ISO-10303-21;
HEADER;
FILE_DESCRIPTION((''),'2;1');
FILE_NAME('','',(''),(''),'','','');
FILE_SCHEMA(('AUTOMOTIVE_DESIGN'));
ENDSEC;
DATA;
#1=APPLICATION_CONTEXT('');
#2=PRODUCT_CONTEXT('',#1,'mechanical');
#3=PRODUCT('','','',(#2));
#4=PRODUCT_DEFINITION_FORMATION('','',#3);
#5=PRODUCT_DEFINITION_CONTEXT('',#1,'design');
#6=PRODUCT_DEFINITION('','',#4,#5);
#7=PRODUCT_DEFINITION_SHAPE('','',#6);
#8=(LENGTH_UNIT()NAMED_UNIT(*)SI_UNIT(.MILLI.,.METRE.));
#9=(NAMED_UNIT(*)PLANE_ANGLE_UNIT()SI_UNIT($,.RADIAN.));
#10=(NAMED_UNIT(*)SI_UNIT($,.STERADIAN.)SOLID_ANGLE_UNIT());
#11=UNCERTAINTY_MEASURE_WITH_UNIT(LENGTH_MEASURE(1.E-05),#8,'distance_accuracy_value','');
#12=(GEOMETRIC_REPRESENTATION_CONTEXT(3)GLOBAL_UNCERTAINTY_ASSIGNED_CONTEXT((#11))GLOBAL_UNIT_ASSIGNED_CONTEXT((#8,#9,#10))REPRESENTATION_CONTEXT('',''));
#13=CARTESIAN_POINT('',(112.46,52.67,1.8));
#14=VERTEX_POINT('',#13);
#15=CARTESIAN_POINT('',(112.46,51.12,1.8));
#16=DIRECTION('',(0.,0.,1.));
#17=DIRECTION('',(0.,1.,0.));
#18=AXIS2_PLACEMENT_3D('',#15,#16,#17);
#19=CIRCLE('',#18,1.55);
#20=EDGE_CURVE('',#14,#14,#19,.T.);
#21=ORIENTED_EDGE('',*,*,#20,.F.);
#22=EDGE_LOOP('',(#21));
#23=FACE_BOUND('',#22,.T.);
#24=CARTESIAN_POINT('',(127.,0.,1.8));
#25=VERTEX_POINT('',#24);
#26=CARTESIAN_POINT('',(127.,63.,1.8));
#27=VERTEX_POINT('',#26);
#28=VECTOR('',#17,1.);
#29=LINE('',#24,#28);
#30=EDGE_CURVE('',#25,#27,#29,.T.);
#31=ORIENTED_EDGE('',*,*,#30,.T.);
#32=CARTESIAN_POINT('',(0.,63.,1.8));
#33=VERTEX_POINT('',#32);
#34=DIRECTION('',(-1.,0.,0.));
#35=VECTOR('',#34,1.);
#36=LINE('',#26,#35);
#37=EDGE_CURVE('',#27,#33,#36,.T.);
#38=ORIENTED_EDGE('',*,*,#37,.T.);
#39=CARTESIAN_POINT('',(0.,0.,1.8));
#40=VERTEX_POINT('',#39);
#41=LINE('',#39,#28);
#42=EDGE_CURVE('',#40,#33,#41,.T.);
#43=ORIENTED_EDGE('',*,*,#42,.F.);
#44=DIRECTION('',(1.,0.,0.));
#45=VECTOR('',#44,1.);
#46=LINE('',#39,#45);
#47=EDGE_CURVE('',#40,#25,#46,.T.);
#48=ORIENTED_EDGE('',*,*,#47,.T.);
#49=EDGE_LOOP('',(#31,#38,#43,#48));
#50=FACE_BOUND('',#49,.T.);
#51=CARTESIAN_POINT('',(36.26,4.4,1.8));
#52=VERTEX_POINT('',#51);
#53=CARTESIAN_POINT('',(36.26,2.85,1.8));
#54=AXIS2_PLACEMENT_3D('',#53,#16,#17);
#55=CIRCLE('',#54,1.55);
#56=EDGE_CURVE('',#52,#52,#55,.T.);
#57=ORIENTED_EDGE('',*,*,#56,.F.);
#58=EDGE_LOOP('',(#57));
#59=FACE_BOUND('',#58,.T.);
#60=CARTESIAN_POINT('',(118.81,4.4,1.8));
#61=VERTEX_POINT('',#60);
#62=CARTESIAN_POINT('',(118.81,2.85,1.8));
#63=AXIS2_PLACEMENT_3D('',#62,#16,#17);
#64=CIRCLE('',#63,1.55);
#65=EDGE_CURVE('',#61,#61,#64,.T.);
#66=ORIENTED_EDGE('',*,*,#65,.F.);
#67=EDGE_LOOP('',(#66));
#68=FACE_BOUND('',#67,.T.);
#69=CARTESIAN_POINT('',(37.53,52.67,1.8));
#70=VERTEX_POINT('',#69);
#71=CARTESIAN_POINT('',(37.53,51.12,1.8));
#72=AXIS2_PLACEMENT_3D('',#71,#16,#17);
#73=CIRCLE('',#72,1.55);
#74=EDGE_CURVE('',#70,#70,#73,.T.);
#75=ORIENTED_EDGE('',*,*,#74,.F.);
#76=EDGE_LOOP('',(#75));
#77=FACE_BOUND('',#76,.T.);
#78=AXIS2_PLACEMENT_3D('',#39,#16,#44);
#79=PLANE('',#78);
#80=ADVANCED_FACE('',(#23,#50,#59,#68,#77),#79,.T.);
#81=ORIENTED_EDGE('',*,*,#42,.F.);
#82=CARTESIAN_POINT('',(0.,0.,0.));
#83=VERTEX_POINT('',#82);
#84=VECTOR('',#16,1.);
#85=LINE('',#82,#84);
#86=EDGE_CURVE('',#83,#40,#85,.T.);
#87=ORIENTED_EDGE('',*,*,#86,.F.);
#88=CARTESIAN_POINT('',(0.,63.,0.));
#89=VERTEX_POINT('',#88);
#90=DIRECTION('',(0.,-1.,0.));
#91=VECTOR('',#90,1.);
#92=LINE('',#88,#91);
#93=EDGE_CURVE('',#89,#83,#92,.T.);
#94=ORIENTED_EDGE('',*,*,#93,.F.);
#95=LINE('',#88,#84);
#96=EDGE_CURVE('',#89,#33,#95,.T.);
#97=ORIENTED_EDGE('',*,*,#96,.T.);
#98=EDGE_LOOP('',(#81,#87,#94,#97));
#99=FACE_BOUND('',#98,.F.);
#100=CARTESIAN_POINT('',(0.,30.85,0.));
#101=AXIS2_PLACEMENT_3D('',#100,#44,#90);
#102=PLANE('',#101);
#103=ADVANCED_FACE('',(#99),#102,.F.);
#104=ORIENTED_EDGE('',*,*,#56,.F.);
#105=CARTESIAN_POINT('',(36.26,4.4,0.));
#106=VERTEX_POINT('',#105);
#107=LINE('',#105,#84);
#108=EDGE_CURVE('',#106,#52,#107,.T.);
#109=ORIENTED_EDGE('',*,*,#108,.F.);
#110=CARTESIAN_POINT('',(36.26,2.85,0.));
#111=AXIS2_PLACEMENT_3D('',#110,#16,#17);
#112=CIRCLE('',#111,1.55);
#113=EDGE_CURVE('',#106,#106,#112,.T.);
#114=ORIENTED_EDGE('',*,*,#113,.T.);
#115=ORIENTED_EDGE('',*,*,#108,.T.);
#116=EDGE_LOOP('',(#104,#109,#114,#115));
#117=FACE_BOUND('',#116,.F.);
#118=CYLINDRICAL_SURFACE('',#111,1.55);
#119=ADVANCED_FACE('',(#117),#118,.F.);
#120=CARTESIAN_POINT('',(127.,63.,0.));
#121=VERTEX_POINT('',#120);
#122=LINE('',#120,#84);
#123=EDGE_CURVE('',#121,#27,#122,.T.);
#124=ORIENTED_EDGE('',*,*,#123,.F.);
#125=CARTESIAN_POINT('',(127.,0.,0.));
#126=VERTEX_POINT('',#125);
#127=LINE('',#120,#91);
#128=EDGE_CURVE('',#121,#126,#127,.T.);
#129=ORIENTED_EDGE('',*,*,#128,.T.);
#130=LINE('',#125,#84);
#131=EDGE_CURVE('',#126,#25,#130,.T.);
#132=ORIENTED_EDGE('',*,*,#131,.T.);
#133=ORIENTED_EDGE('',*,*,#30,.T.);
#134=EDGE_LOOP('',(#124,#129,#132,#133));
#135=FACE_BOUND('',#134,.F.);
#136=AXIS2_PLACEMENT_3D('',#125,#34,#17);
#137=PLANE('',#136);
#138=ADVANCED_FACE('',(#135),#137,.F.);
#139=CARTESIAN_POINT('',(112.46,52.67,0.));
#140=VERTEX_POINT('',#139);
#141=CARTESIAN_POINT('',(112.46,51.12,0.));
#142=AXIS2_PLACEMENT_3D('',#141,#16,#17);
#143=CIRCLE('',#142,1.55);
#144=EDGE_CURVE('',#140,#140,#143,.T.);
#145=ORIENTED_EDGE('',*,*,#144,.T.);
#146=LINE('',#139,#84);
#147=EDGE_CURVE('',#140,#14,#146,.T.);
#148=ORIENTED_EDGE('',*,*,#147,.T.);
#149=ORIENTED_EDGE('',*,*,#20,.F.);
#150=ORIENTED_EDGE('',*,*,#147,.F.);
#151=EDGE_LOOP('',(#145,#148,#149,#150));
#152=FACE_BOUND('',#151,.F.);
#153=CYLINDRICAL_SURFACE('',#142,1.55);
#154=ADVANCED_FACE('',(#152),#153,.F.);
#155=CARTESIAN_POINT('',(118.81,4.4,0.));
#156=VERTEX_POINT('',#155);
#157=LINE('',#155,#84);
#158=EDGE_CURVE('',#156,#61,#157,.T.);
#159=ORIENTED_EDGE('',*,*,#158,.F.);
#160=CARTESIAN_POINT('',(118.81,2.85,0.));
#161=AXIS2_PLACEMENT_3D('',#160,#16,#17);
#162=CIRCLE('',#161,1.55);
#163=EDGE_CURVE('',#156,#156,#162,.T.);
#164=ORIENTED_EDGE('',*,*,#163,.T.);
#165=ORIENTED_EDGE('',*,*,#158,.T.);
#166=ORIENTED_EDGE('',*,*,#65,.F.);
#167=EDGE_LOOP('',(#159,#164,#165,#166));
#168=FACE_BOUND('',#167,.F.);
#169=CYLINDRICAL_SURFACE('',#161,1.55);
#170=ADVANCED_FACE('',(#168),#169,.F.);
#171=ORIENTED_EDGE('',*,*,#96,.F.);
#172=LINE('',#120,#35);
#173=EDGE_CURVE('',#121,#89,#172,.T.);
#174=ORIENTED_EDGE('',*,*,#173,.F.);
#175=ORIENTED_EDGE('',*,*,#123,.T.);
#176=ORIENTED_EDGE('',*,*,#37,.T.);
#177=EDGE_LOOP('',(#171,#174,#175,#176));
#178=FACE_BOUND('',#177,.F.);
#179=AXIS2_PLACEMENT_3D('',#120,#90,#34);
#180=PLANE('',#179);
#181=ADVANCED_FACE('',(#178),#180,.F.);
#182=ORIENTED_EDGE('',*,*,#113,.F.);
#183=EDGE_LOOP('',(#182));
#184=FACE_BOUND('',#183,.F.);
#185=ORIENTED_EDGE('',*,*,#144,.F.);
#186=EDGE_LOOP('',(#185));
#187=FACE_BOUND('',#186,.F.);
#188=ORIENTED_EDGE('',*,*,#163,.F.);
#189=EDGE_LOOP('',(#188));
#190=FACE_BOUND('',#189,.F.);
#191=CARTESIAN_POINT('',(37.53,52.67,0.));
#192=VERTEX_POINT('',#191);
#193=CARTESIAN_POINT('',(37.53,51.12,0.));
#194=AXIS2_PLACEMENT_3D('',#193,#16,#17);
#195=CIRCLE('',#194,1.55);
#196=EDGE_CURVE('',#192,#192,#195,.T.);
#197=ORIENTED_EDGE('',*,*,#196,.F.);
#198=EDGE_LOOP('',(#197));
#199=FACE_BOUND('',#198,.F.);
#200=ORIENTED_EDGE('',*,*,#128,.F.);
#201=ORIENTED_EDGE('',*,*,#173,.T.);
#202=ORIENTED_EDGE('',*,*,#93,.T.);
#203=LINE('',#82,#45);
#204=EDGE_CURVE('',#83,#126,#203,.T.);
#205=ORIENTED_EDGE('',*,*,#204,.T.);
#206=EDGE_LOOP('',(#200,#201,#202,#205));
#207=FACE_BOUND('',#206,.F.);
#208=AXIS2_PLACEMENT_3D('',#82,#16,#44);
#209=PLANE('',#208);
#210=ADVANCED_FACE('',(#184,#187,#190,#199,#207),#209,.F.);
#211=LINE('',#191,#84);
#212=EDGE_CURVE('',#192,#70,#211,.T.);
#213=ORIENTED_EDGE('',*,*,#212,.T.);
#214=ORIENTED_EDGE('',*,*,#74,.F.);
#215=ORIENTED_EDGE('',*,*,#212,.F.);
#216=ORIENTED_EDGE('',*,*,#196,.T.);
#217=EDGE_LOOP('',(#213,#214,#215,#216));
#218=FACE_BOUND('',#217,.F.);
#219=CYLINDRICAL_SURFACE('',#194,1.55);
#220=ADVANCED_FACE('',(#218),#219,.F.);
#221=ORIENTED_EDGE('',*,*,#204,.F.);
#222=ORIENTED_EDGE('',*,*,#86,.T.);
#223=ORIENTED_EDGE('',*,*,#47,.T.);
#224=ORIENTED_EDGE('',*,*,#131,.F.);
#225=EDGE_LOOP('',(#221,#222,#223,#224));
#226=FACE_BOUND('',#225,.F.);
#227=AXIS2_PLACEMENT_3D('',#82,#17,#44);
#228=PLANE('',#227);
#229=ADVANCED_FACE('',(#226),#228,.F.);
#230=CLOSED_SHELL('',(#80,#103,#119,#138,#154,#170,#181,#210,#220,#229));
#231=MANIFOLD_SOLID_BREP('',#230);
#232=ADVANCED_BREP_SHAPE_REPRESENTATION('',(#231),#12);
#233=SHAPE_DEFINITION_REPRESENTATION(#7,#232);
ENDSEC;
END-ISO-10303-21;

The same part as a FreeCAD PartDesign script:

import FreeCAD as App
import Part
import Sketcher

V = App.Vector


def add_polygon(sketch, points):
    """Adds a closed chain of lines whose ends are joined by coincident constraints."""
    first, n = sketch.GeometryCount, len(points)
    for a, b in zip(points, points[1:] + points[:1]):
        sketch.addGeometry(Part.LineSegment(App.Vector(*a, 0), App.Vector(*b, 0)), False)
    for i in range(n):
        sketch.addConstraint(Sketcher.Constraint("Coincident", first + i, 2, first + (i + 1) % n, 1))

doc = App.newDocument("Part")
params = doc.addObject("Spreadsheet::Sheet", "Params")
for row, (alias, value) in enumerate([
    ("sketch1_width", "127 mm"),
    ("sketch1_height", "63 mm"),
    ("pad1_length", "1.8 mm"),
    ("sketch2_diameter", "3.1 mm"),
    ("hole_diameter", "3.1 mm"),
], start=1):
    params.set(f"A{row}", alias)
    params.set(f"B{row}", "=" + value)
    params.setAlias(f"B{row}", alias)

body = doc.addObject("PartDesign::Body", "Body")

# Sketch on XY plane
sketch1 = body.newObject("Sketcher::SketchObject", "Sketch")
sketch1.AttachmentSupport = (doc.getObject("XY_Plane"), [""])
sketch1.MapMode = "FlatFace"
add_polygon(sketch1, [(0, 0), (127, 0), (127, 63), (0, 63)])  # lines 0-3
sketch1.addConstraint([
    Sketcher.Constraint("Horizontal", 0),
    Sketcher.Constraint("Vertical", 1),
    Sketcher.Constraint("Horizontal", 2),
    Sketcher.Constraint("Vertical", 3),
    Sketcher.Constraint("Coincident", 3, 2, -1, 1),
    Sketcher.Constraint("DistanceX", 0, 1, 0, 2, 127.0),
    Sketcher.Constraint("DistanceY", 1, 1, 1, 2, 63.0),
])
sketch1.setExpression("Constraints[9]", "Params.sketch1_width")
sketch1.setExpression("Constraints[10]", "Params.sketch1_height")
pad1 = body.newObject("PartDesign::Pad", "Pad")
pad1.Profile = sketch1
pad1.setExpression("Length", "Params.pad1_length")

# Sketch on XY plane
sketch2 = body.newObject("Sketcher::SketchObject", "Sketch001")
sketch2.AttachmentSupport = (doc.getObject("XY_Plane"), [""])
sketch2.MapMode = "FlatFace"
sketch2.addGeometry([
    Part.Circle(V(37.5, 51.1, 0), V(0, 0, 1), 1.6),
    Part.Circle(V(112.5, 51.1, 0), V(0, 0, 1), 1.6),
    Part.Circle(V(118.8, 2.9, 0), V(0, 0, 1), 1.6),
    Part.Circle(V(36.3, 2.9, 0), V(0, 0, 1), 1.6),
], False)
sketch2.addConstraint([
    Sketcher.Constraint("Equal", 0, 1),
    Sketcher.Constraint("Equal", 1, 2),
    Sketcher.Constraint("Equal", 2, 3),
    Sketcher.Constraint("Horizontal", 0, 3, 1, 3),
    Sketcher.Constraint("Horizontal", 2, 3, 3, 3),
    Sketcher.Constraint("Diameter", 0, 3.1),
    Sketcher.Constraint("DistanceX", 3, 3, 1, 3, 76.2),
    Sketcher.Constraint("DistanceX", -1, 1, 0, 3, 37.53),
    Sketcher.Constraint("DistanceY", -1, 1, 0, 3, 51.12),
    Sketcher.Constraint("DistanceX", -1, 1, 1, 3, 112.46),
    Sketcher.Constraint("DistanceX", -1, 1, 2, 3, 118.81),
    Sketcher.Constraint("DistanceY", -1, 1, 2, 3, 2.85),
])
sketch2.setExpression("Constraints[5]", "Params.sketch2_diameter")
doc.recompute()
hole = body.newObject("PartDesign::Hole", "Hole")
hole.Profile = sketch2
hole.ThreadType = "None"
hole.setExpression("Diameter", "Params.hole_diameter")
hole.DepthType = "ThroughAll"
hole.Reversed = True

doc.recompute()
